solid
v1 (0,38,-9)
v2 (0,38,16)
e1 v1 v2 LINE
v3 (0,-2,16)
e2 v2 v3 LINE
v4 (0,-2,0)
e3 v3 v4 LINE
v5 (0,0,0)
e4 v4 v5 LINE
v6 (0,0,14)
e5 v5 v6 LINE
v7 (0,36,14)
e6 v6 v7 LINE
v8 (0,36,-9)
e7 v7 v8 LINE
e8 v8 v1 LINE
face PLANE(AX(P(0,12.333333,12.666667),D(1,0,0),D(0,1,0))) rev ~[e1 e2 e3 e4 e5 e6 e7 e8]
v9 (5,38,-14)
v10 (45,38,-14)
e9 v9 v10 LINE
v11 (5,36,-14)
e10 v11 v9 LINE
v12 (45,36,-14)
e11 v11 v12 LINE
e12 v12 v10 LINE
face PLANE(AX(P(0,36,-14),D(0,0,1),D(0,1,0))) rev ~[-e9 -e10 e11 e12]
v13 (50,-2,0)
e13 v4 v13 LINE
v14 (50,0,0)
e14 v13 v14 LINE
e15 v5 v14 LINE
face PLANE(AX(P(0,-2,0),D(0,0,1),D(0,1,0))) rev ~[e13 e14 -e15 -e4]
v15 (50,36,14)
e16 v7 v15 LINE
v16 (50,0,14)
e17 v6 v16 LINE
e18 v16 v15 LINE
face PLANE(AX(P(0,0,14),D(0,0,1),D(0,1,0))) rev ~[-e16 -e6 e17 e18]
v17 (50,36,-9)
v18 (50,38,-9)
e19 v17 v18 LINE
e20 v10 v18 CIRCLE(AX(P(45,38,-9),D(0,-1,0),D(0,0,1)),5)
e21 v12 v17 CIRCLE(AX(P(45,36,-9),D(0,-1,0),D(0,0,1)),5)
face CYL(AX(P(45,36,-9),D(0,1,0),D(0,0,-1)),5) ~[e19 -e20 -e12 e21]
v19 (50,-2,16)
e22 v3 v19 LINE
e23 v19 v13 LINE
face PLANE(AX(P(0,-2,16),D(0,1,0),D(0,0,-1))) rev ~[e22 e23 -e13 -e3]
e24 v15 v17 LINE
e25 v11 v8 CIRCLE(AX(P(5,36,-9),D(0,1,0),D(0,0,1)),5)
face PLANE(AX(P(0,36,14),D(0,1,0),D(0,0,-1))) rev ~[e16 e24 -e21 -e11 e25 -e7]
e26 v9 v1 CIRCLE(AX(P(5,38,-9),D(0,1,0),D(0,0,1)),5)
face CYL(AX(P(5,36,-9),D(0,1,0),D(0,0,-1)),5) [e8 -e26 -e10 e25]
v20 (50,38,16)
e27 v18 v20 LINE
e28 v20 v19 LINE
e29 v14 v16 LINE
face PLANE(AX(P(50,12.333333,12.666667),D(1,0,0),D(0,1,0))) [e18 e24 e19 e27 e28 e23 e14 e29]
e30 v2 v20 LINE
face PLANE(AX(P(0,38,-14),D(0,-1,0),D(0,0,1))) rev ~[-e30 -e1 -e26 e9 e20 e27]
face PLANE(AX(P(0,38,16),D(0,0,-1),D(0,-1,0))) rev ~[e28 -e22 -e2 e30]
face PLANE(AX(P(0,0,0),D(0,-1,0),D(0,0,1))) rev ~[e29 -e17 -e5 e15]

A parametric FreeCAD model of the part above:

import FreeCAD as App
import Part
import Sketcher
from FreeCAD import Vector
Q = App.Units.Quantity


def edges_at(feature, points):
    """Names of the edges that pass closest to the given points."""
    edges = feature.Shape.Edges
    near = lambda p: min(range(len(edges)), key=lambda i: edges[i].distToShape(Part.Vertex(*p))[0])
    return sorted({f"Edge{near(p) + 1}" for p in points})


def add_polygon(sketch, points):
    """Adds a closed chain of lines whose ends are joined by coincident constraints."""
    first, n = sketch.GeometryCount, len(points)
    for a, b in zip(points, points[1:] + points[:1]):
        sketch.addGeometry(Part.LineSegment(App.Vector(*a, 0), App.Vector(*b, 0)), False)
    for i in range(n):
        sketch.addConstraint(Sketcher.Constraint("Coincident", first + i, 2, first + (i + 1) % n, 1))

doc = App.newDocument("Part")
body = doc.addObject("PartDesign::Body", "Body")

# Sketch on YZ plane
sketch1 = body.newObject("Sketcher::SketchObject", "Sketch")
sketch1.AttachmentSupport = (doc.getObject("YZ_Plane"), [""])
sketch1.MapMode = "FlatFace"
add_polygon(sketch1, [(-2, 0), (0, 0), (0, 14), (36, 14), (36, -14), (38, -14), (38, 16), (-2, 16)])  # lines 0-7
sketch1.addConstraint([
    Sketcher.Constraint("Horizontal", 0),
    Sketcher.Constraint("Vertical", 1),
    Sketcher.Constraint("Horizontal", 2),
    Sketcher.Constraint("Vertical", 3),
    Sketcher.Constraint("Horizontal", 4),
    Sketcher.Constraint("Vertical", 5),
    Sketcher.Constraint("Horizontal", 6),
    Sketcher.Constraint("Vertical", 7),
    Sketcher.Constraint("Coincident", 0, 2, -1, 1),
    Sketcher.Constraint("Equal", 0, 4),
    Sketcher.Constraint("DistanceX", 0, 1, 0, 2, Q("2 mm")),
    Sketcher.Constraint("DistanceX", 2, 1, 2, 2, Q("36 mm")),
    Sketcher.Constraint("DistanceY", 1, 1, 1, 2, Q("14 mm")),
    Sketcher.Constraint("DistanceY", 3, 2, 3, 1, Q("28 mm")),
    Sketcher.Constraint("DistanceY", 5, 1, 5, 2, Q("30 mm")),
])
pad1 = body.newObject("PartDesign::Pad", "Pad")
pad1.Profile = sketch1
pad1.Length = 50
doc.recompute()

fillet = body.newObject("PartDesign::Fillet", "Fillet")
fillet.Base = (pad1, edges_at(pad1, [(50, 37, -14), (0, 37, -14)]))
fillet.Radius = 5

doc.recompute()
